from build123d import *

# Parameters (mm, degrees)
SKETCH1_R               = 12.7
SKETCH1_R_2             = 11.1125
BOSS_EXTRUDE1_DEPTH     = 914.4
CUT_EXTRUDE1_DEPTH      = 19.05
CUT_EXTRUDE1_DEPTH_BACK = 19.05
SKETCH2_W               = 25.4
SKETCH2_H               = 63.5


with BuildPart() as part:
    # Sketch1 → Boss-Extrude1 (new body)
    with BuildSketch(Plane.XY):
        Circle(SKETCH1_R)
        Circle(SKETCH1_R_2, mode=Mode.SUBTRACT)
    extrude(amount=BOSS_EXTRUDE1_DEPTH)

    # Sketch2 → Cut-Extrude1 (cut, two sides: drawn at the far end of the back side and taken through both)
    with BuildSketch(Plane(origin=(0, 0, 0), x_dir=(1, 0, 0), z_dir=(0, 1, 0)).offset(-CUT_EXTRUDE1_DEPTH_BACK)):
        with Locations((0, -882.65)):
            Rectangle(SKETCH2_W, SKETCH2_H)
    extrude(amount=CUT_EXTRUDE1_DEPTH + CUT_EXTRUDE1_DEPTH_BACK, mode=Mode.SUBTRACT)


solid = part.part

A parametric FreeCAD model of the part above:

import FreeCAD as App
import Part
import Sketcher
Q = App.Units.Quantity


def add_polygon(sketch, points):
    """Adds a closed chain of lines whose ends are joined by coincident constraints."""
    first, n = sketch.GeometryCount, len(points)
    for a, b in zip(points, points[1:] + points[:1]):
        sketch.addGeometry(Part.LineSegment(App.Vector(*a, 0), App.Vector(*b, 0)), False)
    for i in range(n):
        sketch.addConstraint(Sketcher.Constraint("Coincident", first + i, 2, first + (i + 1) % n, 1))

doc = App.newDocument("Part")
params = doc.addObject("Spreadsheet::Sheet", "Params")
for row, (alias, value) in enumerate([
    ("sketch1_diameter", "1 in"),
    ("sketch1_diameter2", "0.875 in"),
    ("pad1_length", "36 in"),
    ("sketch2_width", "1 in"),
    ("sketch2_height", "2.5 in"),
], start=1):
    params.set(f"A{row}", alias)
    params.set(f"B{row}", "=" + value)
    params.setAlias(f"B{row}", alias)

body = doc.addObject("PartDesign::Body", "Body")

# Sketch on XY plane
sketch1 = body.newObject("Sketcher::SketchObject", "Sketch")
sketch1.AttachmentSupport = (doc.getObject("XY_Plane"), [""])
sketch1.MapMode = "FlatFace"
sketch1.addGeometry([
    Part.Circle(App.Vector(0, 0, 0), App.Vector(0, 0, 1), 13),
    Part.Circle(App.Vector(0, 0, 0), App.Vector(0, 0, 1), 11),
], False)
sketch1.addConstraint([
    Sketcher.Constraint("Coincident", 0, 3, -1, 1),
    Sketcher.Constraint("Coincident", 1, 3, -1, 1),
    Sketcher.Constraint("Diameter", 0, Q("1 in")),
    Sketcher.Constraint("Diameter", 1, Q("0.875 in")),
])
sketch1.setExpression("Constraints[2]", "Params.sketch1_diameter")
sketch1.setExpression("Constraints[3]", "Params.sketch1_diameter2")
pad1 = body.newObject("PartDesign::Pad", "Pad")
pad1.Profile = sketch1
pad1.setExpression("Length", "Params.pad1_length")

# Sketch on XZ plane
sketch2 = body.newObject("Sketcher::SketchObject", "Sketch001")
sketch2.AttachmentSupport = (doc.getObject("XZ_Plane"), [""])
sketch2.MapMode = "FlatFace"
add_polygon(sketch2, [(-13, 851), (-13, 914), (13, 914), (13, 851)])  # lines 0-3
sketch2.addConstraint([
    Sketcher.Constraint("Vertical", 0),
    Sketcher.Constraint("Horizontal", 1),
    Sketcher.Constraint("Vertical", 2),
    Sketcher.Constraint("Horizontal", 3),
    Sketcher.Constraint("DistanceX", 1, 1, 1, 2, Q("1 in")),
    Sketcher.Constraint("DistanceY", 0, 1, 0, 2, Q("2.5 in")),
    Sketcher.Constraint("DistanceY", -1, 1, 0, 2, Q("36 in")),
    Sketcher.Constraint("DistanceX", 0, 2, -1, 1, Q("0.5 in")),
])
sketch2.setExpression("Constraints[8]", "Params.sketch2_width")
sketch2.setExpression("Constraints[9]", "Params.sketch2_height")
pocket1 = body.newObject("PartDesign::Pocket", "Pocket")
pocket1.Profile = sketch2
pocket1.Type = "ThroughAll"
pocket1.Midplane = True

doc.recompute()
